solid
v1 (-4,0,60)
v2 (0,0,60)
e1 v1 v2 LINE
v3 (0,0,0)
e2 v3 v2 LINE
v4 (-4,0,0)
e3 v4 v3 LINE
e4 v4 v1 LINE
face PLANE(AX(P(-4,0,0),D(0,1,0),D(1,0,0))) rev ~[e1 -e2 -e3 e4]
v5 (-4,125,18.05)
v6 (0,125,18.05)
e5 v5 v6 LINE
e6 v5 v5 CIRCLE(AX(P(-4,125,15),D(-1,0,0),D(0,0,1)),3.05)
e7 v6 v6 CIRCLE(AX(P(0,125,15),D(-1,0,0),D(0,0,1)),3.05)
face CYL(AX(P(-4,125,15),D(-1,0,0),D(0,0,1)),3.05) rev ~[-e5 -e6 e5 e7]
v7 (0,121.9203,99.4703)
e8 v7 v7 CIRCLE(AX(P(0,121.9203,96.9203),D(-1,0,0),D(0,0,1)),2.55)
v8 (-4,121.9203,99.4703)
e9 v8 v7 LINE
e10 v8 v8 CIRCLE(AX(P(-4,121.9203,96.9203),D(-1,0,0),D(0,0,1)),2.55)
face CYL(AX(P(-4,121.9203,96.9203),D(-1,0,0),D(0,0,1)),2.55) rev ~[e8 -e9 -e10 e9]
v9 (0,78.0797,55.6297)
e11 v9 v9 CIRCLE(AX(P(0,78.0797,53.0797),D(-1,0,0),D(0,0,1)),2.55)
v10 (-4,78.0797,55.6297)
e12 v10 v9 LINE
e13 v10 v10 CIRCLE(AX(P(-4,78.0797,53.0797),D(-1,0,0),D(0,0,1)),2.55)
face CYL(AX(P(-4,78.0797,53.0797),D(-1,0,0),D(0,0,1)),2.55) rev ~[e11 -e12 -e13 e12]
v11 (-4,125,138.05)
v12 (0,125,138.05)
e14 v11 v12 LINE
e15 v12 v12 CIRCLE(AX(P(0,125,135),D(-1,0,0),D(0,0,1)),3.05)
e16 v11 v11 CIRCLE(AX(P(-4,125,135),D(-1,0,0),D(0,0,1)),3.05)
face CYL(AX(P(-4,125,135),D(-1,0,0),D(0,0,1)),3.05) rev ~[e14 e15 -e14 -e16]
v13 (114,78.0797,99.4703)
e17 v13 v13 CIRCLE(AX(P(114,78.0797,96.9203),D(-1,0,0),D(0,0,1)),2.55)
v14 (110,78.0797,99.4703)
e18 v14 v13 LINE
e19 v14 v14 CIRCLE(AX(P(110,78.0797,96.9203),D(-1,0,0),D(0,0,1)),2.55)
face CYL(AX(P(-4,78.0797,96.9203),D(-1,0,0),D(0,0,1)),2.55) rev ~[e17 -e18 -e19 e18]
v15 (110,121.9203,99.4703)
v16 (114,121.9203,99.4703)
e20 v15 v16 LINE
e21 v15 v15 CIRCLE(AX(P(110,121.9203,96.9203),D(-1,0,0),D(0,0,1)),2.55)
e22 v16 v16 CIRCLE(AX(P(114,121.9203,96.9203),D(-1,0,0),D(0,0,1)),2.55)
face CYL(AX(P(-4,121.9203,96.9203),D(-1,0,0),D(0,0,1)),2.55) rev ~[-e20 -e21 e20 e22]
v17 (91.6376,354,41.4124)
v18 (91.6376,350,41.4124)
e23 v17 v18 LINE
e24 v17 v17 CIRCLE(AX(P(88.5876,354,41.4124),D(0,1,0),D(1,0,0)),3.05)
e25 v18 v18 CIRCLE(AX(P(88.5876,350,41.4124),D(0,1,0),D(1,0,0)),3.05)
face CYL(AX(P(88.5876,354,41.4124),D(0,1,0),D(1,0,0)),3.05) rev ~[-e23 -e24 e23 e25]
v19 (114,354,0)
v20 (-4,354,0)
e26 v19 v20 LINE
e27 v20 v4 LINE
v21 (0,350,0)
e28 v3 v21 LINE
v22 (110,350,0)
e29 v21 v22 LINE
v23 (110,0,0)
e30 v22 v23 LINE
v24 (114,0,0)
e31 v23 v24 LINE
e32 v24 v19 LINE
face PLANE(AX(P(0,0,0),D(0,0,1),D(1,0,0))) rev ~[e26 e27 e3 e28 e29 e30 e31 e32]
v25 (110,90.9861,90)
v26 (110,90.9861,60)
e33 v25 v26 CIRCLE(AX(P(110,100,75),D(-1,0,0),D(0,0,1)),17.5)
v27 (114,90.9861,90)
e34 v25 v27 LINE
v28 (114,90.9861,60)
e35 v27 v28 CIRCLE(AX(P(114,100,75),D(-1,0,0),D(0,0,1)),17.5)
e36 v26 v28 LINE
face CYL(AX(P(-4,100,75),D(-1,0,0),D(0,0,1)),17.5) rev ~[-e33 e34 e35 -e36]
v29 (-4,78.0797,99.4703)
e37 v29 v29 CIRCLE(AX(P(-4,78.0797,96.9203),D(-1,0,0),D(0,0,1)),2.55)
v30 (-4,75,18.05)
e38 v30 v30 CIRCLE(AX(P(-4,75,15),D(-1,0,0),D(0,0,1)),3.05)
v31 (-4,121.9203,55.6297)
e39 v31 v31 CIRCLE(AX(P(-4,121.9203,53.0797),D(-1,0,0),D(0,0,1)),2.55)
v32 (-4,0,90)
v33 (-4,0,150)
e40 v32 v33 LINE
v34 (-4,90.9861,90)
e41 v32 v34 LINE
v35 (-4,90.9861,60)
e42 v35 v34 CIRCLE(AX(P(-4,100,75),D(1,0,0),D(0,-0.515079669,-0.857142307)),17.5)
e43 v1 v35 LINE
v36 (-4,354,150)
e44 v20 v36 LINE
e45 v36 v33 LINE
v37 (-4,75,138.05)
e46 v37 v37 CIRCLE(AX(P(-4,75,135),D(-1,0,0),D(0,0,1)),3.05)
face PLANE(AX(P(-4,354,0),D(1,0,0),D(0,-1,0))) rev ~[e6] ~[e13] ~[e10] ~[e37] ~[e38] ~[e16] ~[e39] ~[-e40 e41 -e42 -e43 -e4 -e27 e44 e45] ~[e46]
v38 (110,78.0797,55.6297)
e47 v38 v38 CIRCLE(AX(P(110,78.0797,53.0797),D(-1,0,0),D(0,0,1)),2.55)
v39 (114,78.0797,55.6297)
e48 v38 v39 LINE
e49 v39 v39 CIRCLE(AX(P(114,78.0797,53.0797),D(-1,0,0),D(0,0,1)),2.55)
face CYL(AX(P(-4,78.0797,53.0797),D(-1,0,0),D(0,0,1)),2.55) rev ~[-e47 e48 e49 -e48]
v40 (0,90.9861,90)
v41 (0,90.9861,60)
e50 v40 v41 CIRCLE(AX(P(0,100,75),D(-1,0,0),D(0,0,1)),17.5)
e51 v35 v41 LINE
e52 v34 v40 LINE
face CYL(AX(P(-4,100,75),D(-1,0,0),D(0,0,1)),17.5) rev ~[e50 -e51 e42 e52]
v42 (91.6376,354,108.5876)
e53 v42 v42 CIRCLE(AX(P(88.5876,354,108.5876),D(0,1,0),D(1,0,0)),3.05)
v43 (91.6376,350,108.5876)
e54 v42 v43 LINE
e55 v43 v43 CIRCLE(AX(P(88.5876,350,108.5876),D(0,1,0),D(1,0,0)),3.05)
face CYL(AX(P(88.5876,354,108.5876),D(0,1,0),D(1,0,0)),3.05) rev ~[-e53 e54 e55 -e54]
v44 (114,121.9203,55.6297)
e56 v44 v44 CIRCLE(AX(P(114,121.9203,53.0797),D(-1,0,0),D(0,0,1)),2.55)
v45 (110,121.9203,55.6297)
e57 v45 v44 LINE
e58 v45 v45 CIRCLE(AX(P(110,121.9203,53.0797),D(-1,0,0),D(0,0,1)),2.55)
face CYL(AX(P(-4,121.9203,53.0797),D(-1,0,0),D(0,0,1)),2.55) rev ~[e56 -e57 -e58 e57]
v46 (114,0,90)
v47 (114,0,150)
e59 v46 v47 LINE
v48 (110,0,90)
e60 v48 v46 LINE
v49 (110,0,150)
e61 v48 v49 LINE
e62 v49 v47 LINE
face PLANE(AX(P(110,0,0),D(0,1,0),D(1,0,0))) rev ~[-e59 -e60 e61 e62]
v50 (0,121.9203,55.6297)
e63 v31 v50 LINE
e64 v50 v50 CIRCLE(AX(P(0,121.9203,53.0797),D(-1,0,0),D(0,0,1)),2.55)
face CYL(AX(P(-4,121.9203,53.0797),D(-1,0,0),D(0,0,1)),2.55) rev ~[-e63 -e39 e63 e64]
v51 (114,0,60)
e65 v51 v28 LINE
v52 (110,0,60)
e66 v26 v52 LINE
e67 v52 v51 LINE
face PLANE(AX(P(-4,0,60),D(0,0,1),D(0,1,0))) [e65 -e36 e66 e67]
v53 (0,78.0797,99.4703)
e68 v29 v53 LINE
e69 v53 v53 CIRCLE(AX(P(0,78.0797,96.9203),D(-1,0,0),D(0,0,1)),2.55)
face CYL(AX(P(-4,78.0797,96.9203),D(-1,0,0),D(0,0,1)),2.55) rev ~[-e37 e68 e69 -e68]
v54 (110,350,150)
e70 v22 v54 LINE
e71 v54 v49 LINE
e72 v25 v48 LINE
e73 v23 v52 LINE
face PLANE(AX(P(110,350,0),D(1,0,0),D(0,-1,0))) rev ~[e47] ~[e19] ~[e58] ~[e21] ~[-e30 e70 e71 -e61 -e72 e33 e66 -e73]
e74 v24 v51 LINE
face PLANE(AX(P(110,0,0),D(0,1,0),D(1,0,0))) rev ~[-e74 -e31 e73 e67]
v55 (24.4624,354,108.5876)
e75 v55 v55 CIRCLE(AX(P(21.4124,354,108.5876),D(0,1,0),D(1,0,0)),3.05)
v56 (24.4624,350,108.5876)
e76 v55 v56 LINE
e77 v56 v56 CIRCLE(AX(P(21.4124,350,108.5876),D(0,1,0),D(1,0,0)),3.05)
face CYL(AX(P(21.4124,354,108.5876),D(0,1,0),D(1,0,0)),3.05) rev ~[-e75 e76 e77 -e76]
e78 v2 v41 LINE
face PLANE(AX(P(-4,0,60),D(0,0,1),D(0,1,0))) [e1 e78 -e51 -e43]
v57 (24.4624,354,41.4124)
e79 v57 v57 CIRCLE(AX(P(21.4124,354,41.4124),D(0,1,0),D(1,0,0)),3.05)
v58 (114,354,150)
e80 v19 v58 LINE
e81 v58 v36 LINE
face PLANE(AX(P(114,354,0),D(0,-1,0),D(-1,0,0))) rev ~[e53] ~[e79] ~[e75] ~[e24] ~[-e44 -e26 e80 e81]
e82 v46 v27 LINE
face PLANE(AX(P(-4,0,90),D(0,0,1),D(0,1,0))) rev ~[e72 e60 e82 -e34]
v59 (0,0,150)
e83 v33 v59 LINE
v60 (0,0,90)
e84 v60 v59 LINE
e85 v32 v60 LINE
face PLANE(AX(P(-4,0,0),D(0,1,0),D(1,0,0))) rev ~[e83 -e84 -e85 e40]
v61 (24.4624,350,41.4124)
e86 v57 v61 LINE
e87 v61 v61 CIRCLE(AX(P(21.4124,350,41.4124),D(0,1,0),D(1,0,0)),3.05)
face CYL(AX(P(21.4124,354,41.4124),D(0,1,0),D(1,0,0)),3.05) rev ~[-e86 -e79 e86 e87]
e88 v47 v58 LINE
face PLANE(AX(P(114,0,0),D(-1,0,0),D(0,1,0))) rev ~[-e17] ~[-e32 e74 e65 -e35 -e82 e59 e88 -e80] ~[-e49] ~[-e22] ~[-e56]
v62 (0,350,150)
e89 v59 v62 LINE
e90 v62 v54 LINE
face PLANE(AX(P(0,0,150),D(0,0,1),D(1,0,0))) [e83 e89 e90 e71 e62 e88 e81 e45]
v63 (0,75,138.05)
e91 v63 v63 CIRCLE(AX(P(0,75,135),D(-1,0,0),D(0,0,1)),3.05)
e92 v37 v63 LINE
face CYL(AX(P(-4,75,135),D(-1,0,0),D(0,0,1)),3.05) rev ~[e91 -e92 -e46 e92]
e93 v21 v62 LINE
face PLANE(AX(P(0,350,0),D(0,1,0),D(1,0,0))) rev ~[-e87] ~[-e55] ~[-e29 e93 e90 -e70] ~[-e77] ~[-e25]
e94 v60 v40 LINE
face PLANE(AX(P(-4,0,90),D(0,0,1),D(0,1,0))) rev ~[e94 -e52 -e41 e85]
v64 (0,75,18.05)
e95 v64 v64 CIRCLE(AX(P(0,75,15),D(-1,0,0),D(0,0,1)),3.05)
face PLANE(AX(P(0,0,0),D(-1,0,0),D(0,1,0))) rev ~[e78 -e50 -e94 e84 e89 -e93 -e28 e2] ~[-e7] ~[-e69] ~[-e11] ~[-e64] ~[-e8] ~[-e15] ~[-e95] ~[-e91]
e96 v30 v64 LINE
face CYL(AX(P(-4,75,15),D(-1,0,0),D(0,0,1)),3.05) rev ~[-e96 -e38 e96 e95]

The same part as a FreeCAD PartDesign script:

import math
import FreeCAD as App
import Part
import Sketcher

V = App.Vector

doc = App.newDocument("Part")
params = doc.addObject("Spreadsheet::Sheet", "Params")
for row, (alias, value) in enumerate([
    ("sketch1_width", "4 mm"),
    ("sketch1_width2", "110 mm"),
    ("sketch1_height", "350 mm"),
    ("pad1_length", "150 mm"),
    ("sketch2_diameter", "5.1 mm"),
    ("sketch2_radius", "17.5 mm"),
    ("pocket1_length", "200 mm"),
    ("sketch3_diameter", "6.1 mm"),
    ("pocket2_length", "5 mm"),
    ("sketch4_diameter", "6.1 mm"),
    ("pocket3_length", "20 mm"),
], start=1):
    params.set(f"A{row}", alias)
    params.set(f"B{row}", "=" + value)
    params.setAlias(f"B{row}", alias)

body = doc.addObject("PartDesign::Body", "Body")

sketch1 = doc.addObject("Sketcher::SketchObject", "Sketch")
body.addObject(sketch1)
sketch1.AttachmentSupport = (doc.XY_Plane, [""])
sketch1.MapMode = "FlatFace"
sketch1.addGeometry([
    Part.LineSegment(V(-4, 0, 0), V(0, 0, 0)),
    Part.LineSegment(V(0, 0, 0), V(0, 350, 0)),
    Part.LineSegment(V(0, 350, 0), V(110, 350, 0)),
    Part.LineSegment(V(110, 350, 0), V(110, 0, 0)),
    Part.LineSegment(V(110, 0, 0), V(114, 0, 0)),
    Part.LineSegment(V(114, 0, 0), V(114, 354, 0)),
    Part.LineSegment(V(114, 354, 0), V(-4, 354, 0)),
    Part.LineSegment(V(-4, 354, 0), V(-4, 0, 0)),
], False)
sketch1.addConstraint([
    Sketcher.Constraint("Coincident", 0, 2, 1, 1),
    Sketcher.Constraint("Coincident", 1, 2, 2, 1),
    Sketcher.Constraint("Coincident", 2, 2, 3, 1),
    Sketcher.Constraint("Coincident", 3, 2, 4, 1),
    Sketcher.Constraint("Coincident", 4, 2, 5, 1),
    Sketcher.Constraint("Coincident", 5, 2, 6, 1),
    Sketcher.Constraint("Coincident", 6, 2, 7, 1),
    Sketcher.Constraint("Coincident", 7, 2, 0, 1),
    Sketcher.Constraint("Horizontal", 0),
    Sketcher.Constraint("Vertical", 1),
    Sketcher.Constraint("Horizontal", 2),
    Sketcher.Constraint("Vertical", 3),
    Sketcher.Constraint("Horizontal", 4),
    Sketcher.Constraint("Vertical", 5),
    Sketcher.Constraint("Horizontal", 6),
    Sketcher.Constraint("Vertical", 7),
    Sketcher.Constraint("Coincident", 0, 2, -1, 1),
    Sketcher.Constraint("PointOnObject", 3, 2, -1),
    Sketcher.Constraint("Equal", 0, 4),
    Sketcher.Constraint("DistanceX", 0, 1, 0, 2, 4.0),
    Sketcher.Constraint("DistanceX", 2, 1, 2, 2, 110.0),
    Sketcher.Constraint("DistanceY", 1, 1, 1, 2, 350.0),
    Sketcher.Constraint("DistanceY", 2, 2, 5, 2, 4.0),
])
sketch1.setExpression("Constraints[19]", "Params.sketch1_width")
sketch1.setExpression("Constraints[20]", "Params.sketch1_width2")
sketch1.setExpression("Constraints[21]", "Params.sketch1_height")
pad1 = doc.addObject("PartDesign::Pad", "Pad")
body.addObject(pad1)
pad1.Profile = sketch1
pad1.setExpression("Length", "Params.pad1_length")

sketch2 = doc.addObject("Sketcher::SketchObject", "Sketch001")
body.addObject(sketch2)
sketch2.AttachmentSupport = (doc.YZ_Plane, [""])
sketch2.MapMode = "FlatFace"
sketch2.AttachmentOffset = App.Placement(V(0, 0, -4), App.Rotation())
sketch2.addGeometry([
    Part.LineSegment(V(91, 60, 0), V(0, 60, 0)),
    Part.LineSegment(V(0, 60, 0), V(0, 90, 0)),
    Part.LineSegment(V(0, 90, 0), V(91, 90, 0)),
    Part.ArcOfCircle(Part.Circle(V(100, 75, 0), V(0, 0, 1), 17.5), math.radians(-121), math.radians(121)),
    Part.Circle(V(121.9, 53.1, 0), V(0, 0, 1), 2.5),
    Part.Circle(V(78.1, 53.1, 0), V(0, 0, 1), 2.5),
    Part.Circle(V(78.1, 96.9, 0), V(0, 0, 1), 2.5),
    Part.Circle(V(121.9, 96.9, 0), V(0, 0, 1), 2.5),
], False)
sketch2.addConstraint([
    Sketcher.Constraint("Coincident", 0, 2, 1, 1),
    Sketcher.Constraint("Coincident", 1, 2, 2, 1),
    Sketcher.Constraint("Coincident", 2, 2, 3, 2),
    Sketcher.Constraint("Coincident", 3, 1, 0, 1),
    Sketcher.Constraint("Horizontal", 0),
    Sketcher.Constraint("Vertical", 1),
    Sketcher.Constraint("Horizontal", 2),
    Sketcher.Constraint("Equal", 4, 5),
    Sketcher.Constraint("Equal", 5, 6),
    Sketcher.Constraint("Equal", 6, 7),
    Sketcher.Constraint("PointOnObject", 0, 2, -2),
    Sketcher.Constraint("Horizontal", 4, 3, 5, 3),
    Sketcher.Constraint("Horizontal", 6, 3, 7, 3),
    Sketcher.Constraint("Vertical", 5, 3, 6, 3),
    Sketcher.Constraint("Vertical", 4, 3, 7, 3),
    Sketcher.Constraint("Vertical", 2, 2, 3, 1),
    Sketcher.Constraint("Diameter", 4, 5.1),
    Sketcher.Constraint("Radius", 3, 17.5),
    Sketcher.Constraint("DistanceX", -1, 1, 3, 3, 100.0),
    Sketcher.Constraint("DistanceY", 0, 2, 3, 3, 15.0),
    Sketcher.Constraint("DistanceY", -1, 1, 3, 3, 75.0),
    Sketcher.Constraint("DistanceX", -1, 1, 4, 3, 121.9203),
    Sketcher.Constraint("DistanceY", -1, 1, 4, 3, 53.0797),
    Sketcher.Constraint("DistanceX", -1, 1, 5, 3, 78.0797),
    Sketcher.Constraint("DistanceY", -1, 1, 6, 3, 96.9203),
])
sketch2.setExpression("Constraints[16]", "Params.sketch2_diameter")
sketch2.setExpression("Constraints[17]", "Params.sketch2_radius")
pocket1 = doc.addObject("PartDesign::Pocket", "Pocket")
body.addObject(pocket1)
pocket1.Profile = sketch2
pocket1.setExpression("Length", "Params.pocket1_length")
pocket1.Reversed = True

sketch3 = doc.addObject("Sketcher::SketchObject", "Sketch002")
body.addObject(sketch3)
sketch3.AttachmentSupport = (doc.YZ_Plane, [""])
sketch3.MapMode = "FlatFace"
sketch3.AttachmentOffset = App.Placement(V(0, 0, -4), App.Rotation())
sketch3.addGeometry([
    Part.Circle(V(125, 15, 0), V(0, 0, 1), 3),
    Part.Circle(V(75, 15, 0), V(0, 0, 1), 3),
    Part.Circle(V(75, 135, 0), V(0, 0, 1), 3),
    Part.Circle(V(125, 135, 0), V(0, 0, 1), 3),
], False)
sketch3.addConstraint([
    Sketcher.Constraint("Equal", 0, 1),
    Sketcher.Constraint("Equal", 1, 2),
    Sketcher.Constraint("Equal", 2, 3),
    Sketcher.Constraint("Horizontal", 0, 3, 1, 3),
    Sketcher.Constraint("Horizontal", 2, 3, 3, 3),
    Sketcher.Constraint("Vertical", 1, 3, 2, 3),
    Sketcher.Constraint("Vertical", 0, 3, 3, 3),
    Sketcher.Constraint("Diameter", 0, 6.1),
    Sketcher.Constraint("DistanceX", 1, 3, 0, 3, 50.0),
    Sketcher.Constraint("DistanceY", 1, 3, 2, 3, 120.0),
    Sketcher.Constraint("DistanceX", -1, 1, 0, 3, 125.0),
    Sketcher.Constraint("DistanceY", -1, 1, 0, 3, 15.0),
])
sketch3.setExpression("Constraints[7]", "Params.sketch3_diameter")
pocket2 = doc.addObject("PartDesign::Pocket", "Pocket001")
body.addObject(pocket2)
pocket2.Profile = sketch3
pocket2.setExpression("Length", "Params.pocket2_length")
pocket2.Reversed = True

sketch4 = doc.addObject("Sketcher::SketchObject", "Sketch003")
body.addObject(sketch4)
sketch4.AttachmentSupport = (doc.XZ_Plane, [""])
sketch4.MapMode = "FlatFace"
sketch4.AttachmentOffset = App.Placement(V(0, 0, -354), App.Rotation())
sketch4.addGeometry([
    Part.Circle(V(21.4, 108.6, 0), V(0, 0, 1), 3),
    Part.Circle(V(88.6, 108.6, 0), V(0, 0, 1), 3),
    Part.Circle(V(88.6, 41.4, 0), V(0, 0, 1), 3),
    Part.Circle(V(21.4, 41.4, 0), V(0, 0, 1), 3),
], False)
sketch4.addConstraint([
    Sketcher.Constraint("Equal", 0, 1),
    Sketcher.Constraint("Equal", 1, 2),
    Sketcher.Constraint("Equal", 2, 3),
    Sketcher.Constraint("Horizontal", 0, 3, 1, 3),
    Sketcher.Constraint("Horizontal", 2, 3, 3, 3),
    Sketcher.Constraint("Vertical", 1, 3, 2, 3),
    Sketcher.Constraint("Vertical", 0, 3, 3, 3),
    Sketcher.Constraint("Diameter", 0, 6.1),
    Sketcher.Constraint("DistanceX", -1, 1, 0, 3, 21.4124),
    Sketcher.Constraint("DistanceY", -1, 1, 0, 3, 108.5876),
    Sketcher.Constraint("DistanceX", -1, 1, 1, 3, 88.5876),
    Sketcher.Constraint("DistanceY", -1, 1, 2, 3, 41.4124),
])
sketch4.setExpression("Constraints[7]", "Params.sketch4_diameter")
pocket3 = doc.addObject("PartDesign::Pocket", "Pocket002")
body.addObject(pocket3)
pocket3.Profile = sketch4
pocket3.setExpression("Length", "Params.pocket3_length")
pocket3.Reversed = True

doc.recompute()
